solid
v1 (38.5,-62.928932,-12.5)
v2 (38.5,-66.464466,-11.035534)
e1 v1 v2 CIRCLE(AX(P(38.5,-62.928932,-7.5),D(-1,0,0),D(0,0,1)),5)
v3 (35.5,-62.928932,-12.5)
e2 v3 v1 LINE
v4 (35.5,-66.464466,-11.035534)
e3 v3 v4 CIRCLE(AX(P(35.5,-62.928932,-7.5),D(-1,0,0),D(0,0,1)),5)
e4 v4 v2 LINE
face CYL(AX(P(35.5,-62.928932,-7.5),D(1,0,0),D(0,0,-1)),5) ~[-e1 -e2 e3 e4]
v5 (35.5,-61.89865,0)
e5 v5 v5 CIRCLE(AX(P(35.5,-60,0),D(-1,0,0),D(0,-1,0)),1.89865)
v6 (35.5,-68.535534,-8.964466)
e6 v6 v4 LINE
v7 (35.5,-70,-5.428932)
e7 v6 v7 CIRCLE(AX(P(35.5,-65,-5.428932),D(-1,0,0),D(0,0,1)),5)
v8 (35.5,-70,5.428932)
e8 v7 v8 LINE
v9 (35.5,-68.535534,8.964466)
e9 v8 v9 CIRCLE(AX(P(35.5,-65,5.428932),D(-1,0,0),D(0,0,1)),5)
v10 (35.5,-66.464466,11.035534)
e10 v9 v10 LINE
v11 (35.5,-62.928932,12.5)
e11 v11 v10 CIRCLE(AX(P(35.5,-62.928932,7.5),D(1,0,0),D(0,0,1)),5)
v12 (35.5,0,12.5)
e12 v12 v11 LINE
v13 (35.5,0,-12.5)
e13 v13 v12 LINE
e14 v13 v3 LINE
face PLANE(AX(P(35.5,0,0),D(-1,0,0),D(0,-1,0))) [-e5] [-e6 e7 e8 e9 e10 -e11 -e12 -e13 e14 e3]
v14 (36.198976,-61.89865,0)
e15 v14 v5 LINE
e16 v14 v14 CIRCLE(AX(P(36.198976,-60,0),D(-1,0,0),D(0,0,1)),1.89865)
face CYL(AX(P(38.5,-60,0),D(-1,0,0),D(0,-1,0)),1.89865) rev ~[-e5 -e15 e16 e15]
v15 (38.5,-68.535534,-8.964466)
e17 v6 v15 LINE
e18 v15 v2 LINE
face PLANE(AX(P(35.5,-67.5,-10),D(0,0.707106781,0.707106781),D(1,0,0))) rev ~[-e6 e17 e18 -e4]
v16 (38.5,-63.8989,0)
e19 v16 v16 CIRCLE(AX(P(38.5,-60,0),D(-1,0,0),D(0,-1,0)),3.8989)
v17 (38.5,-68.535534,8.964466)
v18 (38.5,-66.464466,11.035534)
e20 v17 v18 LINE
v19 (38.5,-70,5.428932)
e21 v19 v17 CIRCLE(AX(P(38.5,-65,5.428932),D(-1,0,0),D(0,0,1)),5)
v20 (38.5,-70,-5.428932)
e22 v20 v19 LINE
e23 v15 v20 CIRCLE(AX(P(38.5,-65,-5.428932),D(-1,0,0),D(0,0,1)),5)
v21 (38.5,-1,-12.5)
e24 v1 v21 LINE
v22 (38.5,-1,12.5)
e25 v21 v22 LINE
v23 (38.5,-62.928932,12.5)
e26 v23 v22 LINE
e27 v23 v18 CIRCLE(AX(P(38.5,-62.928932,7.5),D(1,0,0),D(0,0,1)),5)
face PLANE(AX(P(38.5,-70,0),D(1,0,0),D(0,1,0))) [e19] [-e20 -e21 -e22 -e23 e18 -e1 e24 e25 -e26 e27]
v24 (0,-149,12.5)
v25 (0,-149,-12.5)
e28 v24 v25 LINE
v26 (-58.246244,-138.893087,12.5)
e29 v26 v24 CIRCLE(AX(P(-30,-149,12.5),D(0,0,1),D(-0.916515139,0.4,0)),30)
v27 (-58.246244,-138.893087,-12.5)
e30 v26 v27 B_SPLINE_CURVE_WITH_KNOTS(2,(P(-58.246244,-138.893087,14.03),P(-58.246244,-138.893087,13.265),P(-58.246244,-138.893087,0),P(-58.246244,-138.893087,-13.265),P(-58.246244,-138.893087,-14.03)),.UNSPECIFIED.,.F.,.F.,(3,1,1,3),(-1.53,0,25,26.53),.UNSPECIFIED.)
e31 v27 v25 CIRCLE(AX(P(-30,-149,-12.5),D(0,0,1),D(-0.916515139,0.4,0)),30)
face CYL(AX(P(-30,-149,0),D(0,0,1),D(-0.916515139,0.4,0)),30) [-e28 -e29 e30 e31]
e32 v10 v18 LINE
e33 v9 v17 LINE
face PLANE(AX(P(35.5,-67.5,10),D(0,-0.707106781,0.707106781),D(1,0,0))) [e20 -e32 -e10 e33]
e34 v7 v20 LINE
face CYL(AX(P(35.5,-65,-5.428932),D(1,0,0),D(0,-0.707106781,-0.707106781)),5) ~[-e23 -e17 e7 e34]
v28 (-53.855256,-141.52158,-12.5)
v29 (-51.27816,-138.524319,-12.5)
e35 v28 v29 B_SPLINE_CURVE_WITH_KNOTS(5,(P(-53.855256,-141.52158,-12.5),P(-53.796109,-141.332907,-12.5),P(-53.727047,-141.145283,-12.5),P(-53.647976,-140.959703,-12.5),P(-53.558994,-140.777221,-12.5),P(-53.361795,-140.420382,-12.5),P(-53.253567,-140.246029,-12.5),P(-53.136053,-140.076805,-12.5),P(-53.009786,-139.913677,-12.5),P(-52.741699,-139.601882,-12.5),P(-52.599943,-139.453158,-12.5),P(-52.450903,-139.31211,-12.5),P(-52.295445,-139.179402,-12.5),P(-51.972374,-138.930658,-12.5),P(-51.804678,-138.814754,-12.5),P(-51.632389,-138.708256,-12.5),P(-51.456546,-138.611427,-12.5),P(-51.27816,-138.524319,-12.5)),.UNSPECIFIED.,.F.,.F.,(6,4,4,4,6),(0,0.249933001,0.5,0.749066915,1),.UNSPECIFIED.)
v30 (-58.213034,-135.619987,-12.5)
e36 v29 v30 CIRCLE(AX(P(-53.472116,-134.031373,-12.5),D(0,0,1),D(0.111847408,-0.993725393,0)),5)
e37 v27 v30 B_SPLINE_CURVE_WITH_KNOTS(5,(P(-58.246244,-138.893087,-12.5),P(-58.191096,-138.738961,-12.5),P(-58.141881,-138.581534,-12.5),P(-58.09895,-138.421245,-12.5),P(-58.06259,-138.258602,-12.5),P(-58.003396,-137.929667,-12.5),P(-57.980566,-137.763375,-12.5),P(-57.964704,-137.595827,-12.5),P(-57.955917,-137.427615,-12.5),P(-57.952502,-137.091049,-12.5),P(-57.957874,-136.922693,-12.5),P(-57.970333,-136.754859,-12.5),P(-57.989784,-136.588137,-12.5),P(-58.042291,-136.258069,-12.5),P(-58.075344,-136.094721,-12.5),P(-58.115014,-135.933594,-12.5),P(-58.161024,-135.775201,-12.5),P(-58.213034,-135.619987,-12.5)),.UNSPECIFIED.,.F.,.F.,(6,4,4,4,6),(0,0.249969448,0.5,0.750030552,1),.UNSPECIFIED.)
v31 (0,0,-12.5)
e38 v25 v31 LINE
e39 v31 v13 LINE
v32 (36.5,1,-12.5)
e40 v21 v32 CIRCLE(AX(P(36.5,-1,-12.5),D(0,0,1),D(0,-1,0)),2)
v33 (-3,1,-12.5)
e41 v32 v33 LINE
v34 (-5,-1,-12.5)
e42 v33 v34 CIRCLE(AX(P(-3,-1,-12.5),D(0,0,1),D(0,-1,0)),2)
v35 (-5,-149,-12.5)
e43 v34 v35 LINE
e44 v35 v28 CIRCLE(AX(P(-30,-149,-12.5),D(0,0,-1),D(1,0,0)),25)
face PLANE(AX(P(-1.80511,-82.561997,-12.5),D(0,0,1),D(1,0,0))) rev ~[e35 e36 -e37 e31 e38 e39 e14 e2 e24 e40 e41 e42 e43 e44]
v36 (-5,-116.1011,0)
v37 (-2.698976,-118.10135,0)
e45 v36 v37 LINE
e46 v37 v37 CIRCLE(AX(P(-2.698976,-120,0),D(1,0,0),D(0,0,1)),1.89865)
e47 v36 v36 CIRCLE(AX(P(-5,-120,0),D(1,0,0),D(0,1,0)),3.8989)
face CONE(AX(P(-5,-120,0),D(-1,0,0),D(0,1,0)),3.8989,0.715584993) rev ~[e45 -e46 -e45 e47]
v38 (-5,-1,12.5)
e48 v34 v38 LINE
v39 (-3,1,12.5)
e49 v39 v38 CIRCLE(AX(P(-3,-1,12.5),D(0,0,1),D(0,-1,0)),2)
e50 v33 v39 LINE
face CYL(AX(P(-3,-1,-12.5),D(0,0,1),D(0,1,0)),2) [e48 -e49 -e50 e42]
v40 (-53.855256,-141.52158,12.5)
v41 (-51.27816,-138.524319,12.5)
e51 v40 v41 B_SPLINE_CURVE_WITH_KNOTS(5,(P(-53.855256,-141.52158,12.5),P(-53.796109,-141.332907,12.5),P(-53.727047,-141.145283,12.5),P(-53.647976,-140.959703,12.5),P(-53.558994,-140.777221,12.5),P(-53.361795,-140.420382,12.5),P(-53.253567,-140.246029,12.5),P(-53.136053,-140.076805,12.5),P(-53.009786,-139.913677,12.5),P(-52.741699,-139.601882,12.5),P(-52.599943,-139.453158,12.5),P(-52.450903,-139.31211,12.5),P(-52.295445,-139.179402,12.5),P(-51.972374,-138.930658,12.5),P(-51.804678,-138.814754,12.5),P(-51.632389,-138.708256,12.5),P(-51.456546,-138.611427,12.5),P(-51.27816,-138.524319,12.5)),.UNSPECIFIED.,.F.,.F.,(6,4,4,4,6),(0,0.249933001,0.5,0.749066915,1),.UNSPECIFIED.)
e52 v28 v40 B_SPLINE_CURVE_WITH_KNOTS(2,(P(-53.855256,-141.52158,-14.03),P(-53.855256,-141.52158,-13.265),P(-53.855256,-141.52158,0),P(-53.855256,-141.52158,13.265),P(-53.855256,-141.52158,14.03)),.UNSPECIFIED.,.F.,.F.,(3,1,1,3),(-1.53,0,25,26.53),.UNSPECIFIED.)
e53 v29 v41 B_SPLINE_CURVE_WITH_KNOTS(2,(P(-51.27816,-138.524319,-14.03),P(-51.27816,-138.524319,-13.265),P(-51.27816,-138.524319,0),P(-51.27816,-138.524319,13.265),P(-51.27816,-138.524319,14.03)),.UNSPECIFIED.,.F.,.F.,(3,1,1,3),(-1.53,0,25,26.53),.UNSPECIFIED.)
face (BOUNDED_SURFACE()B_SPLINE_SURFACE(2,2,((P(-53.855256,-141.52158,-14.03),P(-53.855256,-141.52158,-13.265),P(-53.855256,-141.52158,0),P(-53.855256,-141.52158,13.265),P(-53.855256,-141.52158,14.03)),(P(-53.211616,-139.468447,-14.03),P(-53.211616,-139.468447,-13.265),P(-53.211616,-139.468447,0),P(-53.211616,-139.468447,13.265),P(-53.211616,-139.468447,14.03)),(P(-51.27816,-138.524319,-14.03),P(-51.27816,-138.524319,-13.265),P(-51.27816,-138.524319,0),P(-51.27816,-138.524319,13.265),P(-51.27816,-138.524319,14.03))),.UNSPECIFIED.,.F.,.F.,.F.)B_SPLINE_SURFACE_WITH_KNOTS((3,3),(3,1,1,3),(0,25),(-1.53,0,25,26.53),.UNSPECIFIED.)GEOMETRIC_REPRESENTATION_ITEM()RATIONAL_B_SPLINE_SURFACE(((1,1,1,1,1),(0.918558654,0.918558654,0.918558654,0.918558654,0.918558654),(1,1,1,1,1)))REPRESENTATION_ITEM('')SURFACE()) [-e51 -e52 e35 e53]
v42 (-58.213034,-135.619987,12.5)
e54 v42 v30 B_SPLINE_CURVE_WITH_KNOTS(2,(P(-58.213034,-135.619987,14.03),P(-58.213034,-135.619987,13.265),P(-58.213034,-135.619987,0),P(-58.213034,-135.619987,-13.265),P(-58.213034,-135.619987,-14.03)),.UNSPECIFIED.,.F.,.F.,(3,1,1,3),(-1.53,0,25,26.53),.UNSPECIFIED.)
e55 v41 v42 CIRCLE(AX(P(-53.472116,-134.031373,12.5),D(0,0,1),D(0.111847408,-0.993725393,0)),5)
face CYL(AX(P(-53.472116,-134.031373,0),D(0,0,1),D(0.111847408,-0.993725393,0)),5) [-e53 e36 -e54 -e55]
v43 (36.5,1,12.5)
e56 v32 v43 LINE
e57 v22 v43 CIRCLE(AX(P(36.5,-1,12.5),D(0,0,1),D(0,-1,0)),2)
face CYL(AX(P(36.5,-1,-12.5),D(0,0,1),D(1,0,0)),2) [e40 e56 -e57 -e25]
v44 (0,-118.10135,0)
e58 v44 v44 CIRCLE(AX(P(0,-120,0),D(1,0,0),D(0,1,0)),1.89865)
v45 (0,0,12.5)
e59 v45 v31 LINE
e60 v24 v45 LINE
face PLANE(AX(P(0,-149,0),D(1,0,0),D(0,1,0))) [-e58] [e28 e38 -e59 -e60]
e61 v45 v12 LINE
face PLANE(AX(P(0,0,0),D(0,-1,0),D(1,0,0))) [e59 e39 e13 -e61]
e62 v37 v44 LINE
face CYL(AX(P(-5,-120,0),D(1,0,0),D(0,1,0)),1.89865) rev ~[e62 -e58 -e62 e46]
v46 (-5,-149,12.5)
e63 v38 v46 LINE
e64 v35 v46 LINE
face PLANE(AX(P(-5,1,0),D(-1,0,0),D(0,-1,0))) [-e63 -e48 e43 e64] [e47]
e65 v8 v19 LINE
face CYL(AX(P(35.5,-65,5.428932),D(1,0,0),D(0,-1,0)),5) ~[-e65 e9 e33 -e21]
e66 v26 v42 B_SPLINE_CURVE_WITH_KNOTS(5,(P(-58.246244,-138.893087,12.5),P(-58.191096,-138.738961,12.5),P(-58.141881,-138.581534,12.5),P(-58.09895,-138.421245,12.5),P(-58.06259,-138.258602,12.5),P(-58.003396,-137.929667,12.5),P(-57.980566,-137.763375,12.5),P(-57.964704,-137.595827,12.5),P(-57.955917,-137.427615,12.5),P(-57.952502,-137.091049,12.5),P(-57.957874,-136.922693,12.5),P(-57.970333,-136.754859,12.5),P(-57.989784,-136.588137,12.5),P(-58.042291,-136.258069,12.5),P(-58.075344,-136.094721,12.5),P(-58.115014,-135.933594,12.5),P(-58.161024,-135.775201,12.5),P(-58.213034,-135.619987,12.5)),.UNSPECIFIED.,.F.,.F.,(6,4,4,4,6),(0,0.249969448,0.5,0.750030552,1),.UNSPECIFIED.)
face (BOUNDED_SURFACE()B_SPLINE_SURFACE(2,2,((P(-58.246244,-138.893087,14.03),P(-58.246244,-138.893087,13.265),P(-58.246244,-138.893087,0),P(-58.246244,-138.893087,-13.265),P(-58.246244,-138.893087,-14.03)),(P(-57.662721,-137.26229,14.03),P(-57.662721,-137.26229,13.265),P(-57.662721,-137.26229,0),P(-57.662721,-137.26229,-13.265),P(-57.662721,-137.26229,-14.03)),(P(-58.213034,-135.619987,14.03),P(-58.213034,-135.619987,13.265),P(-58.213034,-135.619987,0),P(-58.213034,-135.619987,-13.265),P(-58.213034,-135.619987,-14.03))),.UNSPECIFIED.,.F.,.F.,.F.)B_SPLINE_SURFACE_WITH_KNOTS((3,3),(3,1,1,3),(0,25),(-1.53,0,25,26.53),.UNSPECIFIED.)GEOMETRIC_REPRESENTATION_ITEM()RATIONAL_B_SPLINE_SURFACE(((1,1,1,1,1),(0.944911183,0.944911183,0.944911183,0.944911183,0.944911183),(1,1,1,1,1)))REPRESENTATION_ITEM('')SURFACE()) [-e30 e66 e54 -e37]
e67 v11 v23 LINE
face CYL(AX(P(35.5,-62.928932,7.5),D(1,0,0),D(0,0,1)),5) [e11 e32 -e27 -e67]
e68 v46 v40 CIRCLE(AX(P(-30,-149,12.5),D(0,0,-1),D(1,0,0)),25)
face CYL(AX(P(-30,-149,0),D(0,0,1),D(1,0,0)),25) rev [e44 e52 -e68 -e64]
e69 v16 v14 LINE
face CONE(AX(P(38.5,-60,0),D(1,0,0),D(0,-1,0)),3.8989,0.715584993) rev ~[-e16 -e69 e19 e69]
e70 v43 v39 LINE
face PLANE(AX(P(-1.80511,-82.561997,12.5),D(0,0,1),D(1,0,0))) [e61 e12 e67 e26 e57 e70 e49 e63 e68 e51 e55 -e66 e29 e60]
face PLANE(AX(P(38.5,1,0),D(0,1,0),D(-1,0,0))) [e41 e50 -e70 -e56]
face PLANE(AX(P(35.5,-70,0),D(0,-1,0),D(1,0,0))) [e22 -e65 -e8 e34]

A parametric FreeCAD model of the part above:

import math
import FreeCAD as App
import Part
import Sketcher
from FreeCAD import Vector
Q = App.Units.Quantity


def edges_at(feature, points):
    """Names of the edges that pass closest to the given points."""
    edges = feature.Shape.Edges
    near = lambda p: min(range(len(edges)), key=lambda i: edges[i].distToShape(Part.Vertex(*p))[0])
    return sorted({f"Edge{near(p) + 1}" for p in points})

doc = App.newDocument("Part")
params = doc.addObject("Spreadsheet::Sheet", "Params")
for row, (alias, value) in enumerate([
    ("sketch1_radius", "25 mm"),
    ("sketch1_radius2", "5 mm"),
    ("sketch1_radius3", "30 mm"),
    ("sketch1_width", "3 mm"),
    ("sketch1_height", "70 mm"),
    ("pad1_length", "25 mm"),
    ("chamfer_size", "5 mm"),
    ("fillet_radius", "2 mm"),
    ("fillet2_radius", "5 mm"),
    ("fillet3_radius", "5 mm"),
    ("hole_diameter", "3.7973 mm"),
    ("hole_depth", "12.62 mm"),
    ("hole_csink_diameter", "7.7978 mm"),
    ("hole2_diameter", "3.7973 mm"),
    ("hole2_depth", "12.62 mm"),
    ("hole2_csink_diameter", "7.7978 mm"),
], start=1):
    params.set(f"A{row}", alias)
    params.set(f"B{row}", "=" + value)
    params.setAlias(f"B{row}", alias)

body = doc.addObject("PartDesign::Body", "Body")

# Sketch on XY plane
sketch1 = doc.addObject("Sketcher::SketchObject", "Sketch")
body.addObject(sketch1)
sketch1.AttachmentSupport = (doc.XY_Plane, [""])
sketch1.MapMode = "FlatFace"
sketch1.addGeometry([
    Part.LineSegment(Vector(0, 0, 0), Vector(35.5, 0, 0)),  # 0
    Part.LineSegment(Vector(35.5, 0, 0), Vector(35.5, -70, 0)),  # 1
    Part.LineSegment(Vector(35.5, -70, 0), Vector(38.5, -70, 0)),  # 2
    Part.LineSegment(Vector(38.5, -70, 0), Vector(38.5, 1, 0)),  # 3
    Part.LineSegment(Vector(38.5, 1, 0), Vector(-5, 1, 0)),  # 4
    Part.LineSegment(Vector(-5, 1, 0), Vector(-5, -149, 0)),  # 5
    Part.ArcOfCircle(Part.Circle(Vector(-30, -149, 0), Vector(0, 0, 1), 25), math.radians(156), math.radians(360)),  # 6
    Part.ArcOfCircle(Part.Circle(Vector(-53.5, -134, 0), Vector(0, 0, 1), 5), math.radians(-84), math.radians(216)),  # 7
    Part.ArcOfCircle(Part.Circle(Vector(-30, -149, 0), Vector(0, 0, 1), 30), math.radians(156), math.radians(360)),  # 8
    Part.LineSegment(Vector(0, -149, 0), Vector(0, 0, 0)),  # 9
], False)
sketch1.addConstraint([
    Sketcher.Constraint("Coincident", 0, 2, 1, 1),
    Sketcher.Constraint("Coincident", 1, 2, 2, 1),
    Sketcher.Constraint("Coincident", 2, 2, 3, 1),
    Sketcher.Constraint("Coincident", 3, 2, 4, 1),
    Sketcher.Constraint("Coincident", 4, 2, 5, 1),
    Sketcher.Constraint("Tangent", 5, 2, 6, 2),
    Sketcher.Constraint("Coincident", 6, 1, 7, 1),
    Sketcher.Constraint("Coincident", 7, 2, 8, 1),
    Sketcher.Constraint("Tangent", 8, 2, 9, 1),
    Sketcher.Constraint("Coincident", 9, 2, 0, 1),
    Sketcher.Constraint("Horizontal", 0),
    Sketcher.Constraint("Vertical", 1),
    Sketcher.Constraint("Horizontal", 2),
    Sketcher.Constraint("Vertical", 3),
    Sketcher.Constraint("Horizontal", 4),
    Sketcher.Constraint("Vertical", 5),
    Sketcher.Constraint("Vertical", 9),
    Sketcher.Constraint("Coincident", 9, 2, -1, 1),
    Sketcher.Constraint("Coincident", 8, 3, 6, 3),
    Sketcher.Constraint("Radius", 6, Q("25 mm")),
    Sketcher.Constraint("Radius", 7, Q("5 mm")),
    Sketcher.Constraint("Radius", 8, Q("30 mm")),
    Sketcher.Constraint("DistanceX", 2, 1, 2, 2, Q("3 mm")),
    Sketcher.Constraint("DistanceY", 1, 2, 1, 1, Q("70 mm")),
    Sketcher.Constraint("DistanceY", 3, 1, 3, 2, Q("71 mm")),
    Sketcher.Constraint("DistanceY", 5, 2, 5, 1, Q("150 mm")),
    Sketcher.Constraint("DistanceX", 0, 1, 0, 2, Q("35.5 mm")),
    Sketcher.Constraint("DistanceY", 6, 1, -1, 1, Q("139 mm")),
    Sketcher.Constraint("DistanceY", 7, 2, -1, 1, Q("137 mm")),
])
sketch1.setExpression("Constraints[19]", "Params.sketch1_radius")
sketch1.setExpression("Constraints[20]", "Params.sketch1_radius2")
sketch1.setExpression("Constraints[21]", "Params.sketch1_radius3")
sketch1.setExpression("Constraints[22]", "Params.sketch1_width")
sketch1.setExpression("Constraints[23]", "Params.sketch1_height")
pad1 = doc.addObject("PartDesign::Pad", "Pad")
body.addObject(pad1)
pad1.Profile = sketch1
pad1.setExpression("Length", "Params.pad1_length")
pad1.Midplane = True
doc.recompute()

chamfer = doc.addObject("PartDesign::Chamfer", "Chamfer")
body.addObject(chamfer)
chamfer.Base = (pad1, edges_at(pad1, [(37, -70, 12.5), (37, -70, -12.5)]))
chamfer.setExpression("Size", "Params.chamfer_size")
doc.recompute()

fillet = doc.addObject("PartDesign::Fillet", "Fillet")
body.addObject(fillet)
fillet.Base = (chamfer, edges_at(chamfer, [(-5, 1, 0), (38.5, 1, 0)]))
fillet.setExpression("Radius", "Params.fillet_radius")
doc.recompute()

fillet2 = doc.addObject("PartDesign::Fillet", "Fillet001")
body.addObject(fillet2)
fillet2.Base = (fillet, edges_at(fillet, [
    (37, -65, 12.5),
    (37, -70, 7.5),
    (37, -65, -12.5),
    (37, -70, -7.5),
]))
fillet2.setExpression("Radius", "Params.fillet2_radius")
doc.recompute()

fillet3 = doc.addObject("PartDesign::Fillet", "Fillet002")
body.addObject(fillet3)
fillet3.Base = (fillet2, edges_at(fillet2, [(-57.495, -137, 0), (-52.913, -139, 0)]))
fillet3.setExpression("Radius", "Params.fillet3_radius")

# Sketch on YZ plane
sketch2 = doc.addObject("Sketcher::SketchObject", "Sketch001")
body.addObject(sketch2)
sketch2.AttachmentSupport = (doc.YZ_Plane, [""])
sketch2.MapMode = "FlatFace"
sketch2.AttachmentOffset = App.Placement(Vector(0, 0, -5), App.Rotation())
sketch2.addGeometry(Part.Circle(Vector(-120, 0, 0), Vector(0, 0, 1), 1.9), False)
sketch2.addConstraint([
    Sketcher.Constraint("PointOnObject", 0, 3, -1),
    Sketcher.Constraint("DistanceX", 0, 3, -1, 1, Q("120 mm")),
    Sketcher.Constraint("Diameter", 0, Q("3.7973 mm")),
])
doc.recompute()
hole = doc.addObject("PartDesign::Hole", "Hole")
body.addObject(hole)
hole.Profile = sketch2
hole.ThreadType = "None"
hole.setExpression("Diameter", "Params.hole_diameter")
hole.DepthType = "Dimension"
hole.setExpression("Depth", "Params.hole_depth")
hole.DrillPoint = "Angled"
hole.DrillPointAngle = 118
hole.HoleCutType = "Countersink"
hole.setExpression("HoleCutDiameter", "Params.hole_csink_diameter")
hole.HoleCutCountersinkAngle = 82
hole.Reversed = True

# Sketch on YZ plane
sketch3 = doc.addObject("Sketcher::SketchObject", "Sketch002")
body.addObject(sketch3)
sketch3.AttachmentSupport = (doc.YZ_Plane, [""])
sketch3.MapMode = "FlatFace"
sketch3.AttachmentOffset = App.Placement(Vector(0, 0, 38.5), App.Rotation())
sketch3.addGeometry(Part.Circle(Vector(-60, 0, 0), Vector(0, 0, 1), 1.9), False)
sketch3.addConstraint([
    Sketcher.Constraint("PointOnObject", 0, 3, -1),
    Sketcher.Constraint("DistanceX", 0, 3, -1, 1, Q("60 mm")),
    Sketcher.Constraint("Diameter", 0, Q("3.7973 mm")),
])
doc.recompute()
hole2 = doc.addObject("PartDesign::Hole", "Hole001")
body.addObject(hole2)
hole2.Profile = sketch3
hole2.ThreadType = "None"
hole2.setExpression("Diameter", "Params.hole2_diameter")
hole2.DepthType = "Dimension"
hole2.setExpression("Depth", "Params.hole2_depth")
hole2.DrillPoint = "Angled"
hole2.DrillPointAngle = 118
hole2.HoleCutType = "Countersink"
hole2.setExpression("HoleCutDiameter", "Params.hole2_csink_diameter")
hole2.HoleCutCountersinkAngle = 82

doc.recompute()
